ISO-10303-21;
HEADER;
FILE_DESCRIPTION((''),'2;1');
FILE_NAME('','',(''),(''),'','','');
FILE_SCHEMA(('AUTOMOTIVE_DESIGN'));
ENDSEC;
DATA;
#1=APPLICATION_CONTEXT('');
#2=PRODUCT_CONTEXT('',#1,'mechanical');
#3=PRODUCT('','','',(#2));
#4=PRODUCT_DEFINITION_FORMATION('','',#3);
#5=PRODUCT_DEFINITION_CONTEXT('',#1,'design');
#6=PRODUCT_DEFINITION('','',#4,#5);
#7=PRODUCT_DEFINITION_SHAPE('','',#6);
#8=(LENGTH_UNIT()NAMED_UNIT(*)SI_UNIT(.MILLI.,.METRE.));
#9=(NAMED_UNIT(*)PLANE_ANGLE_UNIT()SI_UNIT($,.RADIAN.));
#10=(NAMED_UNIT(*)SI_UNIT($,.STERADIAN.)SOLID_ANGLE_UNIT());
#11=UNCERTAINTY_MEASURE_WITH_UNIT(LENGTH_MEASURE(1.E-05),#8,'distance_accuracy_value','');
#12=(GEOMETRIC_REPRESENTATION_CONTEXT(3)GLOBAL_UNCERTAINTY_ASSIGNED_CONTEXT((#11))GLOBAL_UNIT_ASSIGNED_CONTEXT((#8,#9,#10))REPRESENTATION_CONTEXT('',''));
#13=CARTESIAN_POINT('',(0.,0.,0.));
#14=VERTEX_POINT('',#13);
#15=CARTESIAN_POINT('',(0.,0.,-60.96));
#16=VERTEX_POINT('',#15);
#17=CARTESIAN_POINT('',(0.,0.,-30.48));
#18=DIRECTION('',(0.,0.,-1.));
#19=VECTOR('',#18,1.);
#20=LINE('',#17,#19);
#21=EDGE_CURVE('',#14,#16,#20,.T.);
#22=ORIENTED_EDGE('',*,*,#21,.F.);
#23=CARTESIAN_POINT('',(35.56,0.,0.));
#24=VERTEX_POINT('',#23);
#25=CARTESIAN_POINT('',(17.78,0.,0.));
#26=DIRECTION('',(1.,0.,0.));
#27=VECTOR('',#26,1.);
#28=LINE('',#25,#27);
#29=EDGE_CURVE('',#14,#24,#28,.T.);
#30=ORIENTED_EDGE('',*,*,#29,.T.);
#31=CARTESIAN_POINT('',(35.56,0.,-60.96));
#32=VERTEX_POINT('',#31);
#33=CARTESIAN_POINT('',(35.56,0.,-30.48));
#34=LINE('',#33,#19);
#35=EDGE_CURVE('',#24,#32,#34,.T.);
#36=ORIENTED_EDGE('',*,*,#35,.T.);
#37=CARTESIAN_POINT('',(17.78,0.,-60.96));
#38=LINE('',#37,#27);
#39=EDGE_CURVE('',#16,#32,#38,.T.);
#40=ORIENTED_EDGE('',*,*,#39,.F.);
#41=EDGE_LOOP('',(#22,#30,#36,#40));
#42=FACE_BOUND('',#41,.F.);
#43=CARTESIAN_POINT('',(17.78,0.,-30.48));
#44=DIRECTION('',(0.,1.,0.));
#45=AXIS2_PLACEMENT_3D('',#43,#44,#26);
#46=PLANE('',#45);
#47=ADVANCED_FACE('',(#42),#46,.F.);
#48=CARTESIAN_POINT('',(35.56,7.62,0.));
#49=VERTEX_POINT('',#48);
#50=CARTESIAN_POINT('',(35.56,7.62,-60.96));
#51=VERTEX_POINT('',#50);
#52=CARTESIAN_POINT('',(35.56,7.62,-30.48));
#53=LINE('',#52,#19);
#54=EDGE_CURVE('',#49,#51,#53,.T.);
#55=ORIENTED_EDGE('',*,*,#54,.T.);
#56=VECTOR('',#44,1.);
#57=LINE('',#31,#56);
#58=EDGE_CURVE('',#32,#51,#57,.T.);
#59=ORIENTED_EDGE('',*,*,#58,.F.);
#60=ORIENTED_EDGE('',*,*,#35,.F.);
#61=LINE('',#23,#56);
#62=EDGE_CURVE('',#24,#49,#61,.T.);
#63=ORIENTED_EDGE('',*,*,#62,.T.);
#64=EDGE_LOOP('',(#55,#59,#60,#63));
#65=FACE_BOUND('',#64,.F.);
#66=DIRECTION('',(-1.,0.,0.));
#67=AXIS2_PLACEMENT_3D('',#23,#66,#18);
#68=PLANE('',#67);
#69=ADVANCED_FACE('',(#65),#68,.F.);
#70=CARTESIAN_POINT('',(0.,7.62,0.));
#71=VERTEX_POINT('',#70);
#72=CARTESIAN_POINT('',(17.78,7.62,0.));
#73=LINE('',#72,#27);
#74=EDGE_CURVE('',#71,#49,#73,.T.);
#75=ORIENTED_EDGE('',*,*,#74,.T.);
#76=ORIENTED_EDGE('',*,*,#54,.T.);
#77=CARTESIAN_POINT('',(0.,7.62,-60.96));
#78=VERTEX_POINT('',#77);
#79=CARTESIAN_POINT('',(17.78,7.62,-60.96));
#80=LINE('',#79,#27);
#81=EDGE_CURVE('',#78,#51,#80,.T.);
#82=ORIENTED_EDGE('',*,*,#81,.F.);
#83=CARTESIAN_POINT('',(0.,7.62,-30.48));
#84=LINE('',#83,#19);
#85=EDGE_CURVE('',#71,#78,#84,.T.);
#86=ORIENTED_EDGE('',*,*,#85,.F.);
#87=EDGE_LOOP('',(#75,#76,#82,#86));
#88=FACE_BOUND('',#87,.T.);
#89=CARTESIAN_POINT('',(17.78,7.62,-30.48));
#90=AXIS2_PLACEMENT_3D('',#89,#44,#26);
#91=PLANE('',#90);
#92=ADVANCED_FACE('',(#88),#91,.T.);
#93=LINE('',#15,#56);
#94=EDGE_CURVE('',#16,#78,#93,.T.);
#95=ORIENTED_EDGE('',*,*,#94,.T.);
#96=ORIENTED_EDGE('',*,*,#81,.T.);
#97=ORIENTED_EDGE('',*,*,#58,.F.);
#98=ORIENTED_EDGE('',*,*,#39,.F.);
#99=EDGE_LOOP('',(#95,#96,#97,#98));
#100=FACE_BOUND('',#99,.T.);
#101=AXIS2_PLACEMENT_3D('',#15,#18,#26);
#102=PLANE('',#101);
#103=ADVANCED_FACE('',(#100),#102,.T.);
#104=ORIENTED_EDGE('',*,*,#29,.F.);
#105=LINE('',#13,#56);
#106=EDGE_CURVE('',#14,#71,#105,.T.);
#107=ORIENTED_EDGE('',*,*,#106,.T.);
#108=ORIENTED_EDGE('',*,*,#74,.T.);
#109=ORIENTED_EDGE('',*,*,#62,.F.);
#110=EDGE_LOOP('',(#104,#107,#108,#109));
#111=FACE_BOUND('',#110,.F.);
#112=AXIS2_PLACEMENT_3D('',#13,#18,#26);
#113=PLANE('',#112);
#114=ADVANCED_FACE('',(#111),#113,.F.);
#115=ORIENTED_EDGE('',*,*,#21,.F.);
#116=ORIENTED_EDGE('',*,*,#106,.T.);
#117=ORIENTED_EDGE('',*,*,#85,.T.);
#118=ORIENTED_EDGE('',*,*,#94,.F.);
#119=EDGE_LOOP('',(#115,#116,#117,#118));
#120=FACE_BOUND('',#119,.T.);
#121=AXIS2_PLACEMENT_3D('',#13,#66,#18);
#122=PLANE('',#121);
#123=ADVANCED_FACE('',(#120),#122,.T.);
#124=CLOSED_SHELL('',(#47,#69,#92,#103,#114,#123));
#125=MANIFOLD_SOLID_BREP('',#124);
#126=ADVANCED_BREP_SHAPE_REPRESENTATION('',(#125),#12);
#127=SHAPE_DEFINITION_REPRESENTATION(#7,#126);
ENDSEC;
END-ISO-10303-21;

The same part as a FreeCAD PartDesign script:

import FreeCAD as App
import Part
import Sketcher
Q = App.Units.Quantity


def add_polygon(sketch, points):
    """Adds a closed chain of lines whose ends are joined by coincident constraints."""
    first, n = sketch.GeometryCount, len(points)
    for a, b in zip(points, points[1:] + points[:1]):
        sketch.addGeometry(Part.LineSegment(App.Vector(*a, 0), App.Vector(*b, 0)), False)
    for i in range(n):
        sketch.addConstraint(Sketcher.Constraint("Coincident", first + i, 2, first + (i + 1) % n, 1))

doc = App.newDocument("Part")
body = doc.addObject("PartDesign::Body", "Body")

# Sketch on XZ plane
sketch1 = doc.addObject("Sketcher::SketchObject", "Sketch")
body.addObject(sketch1)
sketch1.AttachmentSupport = (doc.XZ_Plane, [""])
sketch1.MapMode = "FlatFace"
add_polygon(sketch1, [(0, -60.96), (0, 0), (35.56, 0), (35.56, -60.96)])  # lines 0-3
sketch1.addConstraint([
    Sketcher.Constraint("Vertical", 0),
    Sketcher.Constraint("Horizontal", 1),
    Sketcher.Constraint("Vertical", 2),
    Sketcher.Constraint("Horizontal", 3),
    Sketcher.Constraint("Coincident", 0, 2, -1, 1),
    Sketcher.Constraint("DistanceX", 1, 1, 1, 2, Q("1.4 in")),
    Sketcher.Constraint("DistanceY", 0, 1, 0, 2, Q("2.4 in")),
])
pad1 = doc.addObject("PartDesign::Pad", "Pad")
body.addObject(pad1)
pad1.Profile = sketch1
pad1.Length = Q("0.3 in")
pad1.Reversed = True

doc.recompute()
